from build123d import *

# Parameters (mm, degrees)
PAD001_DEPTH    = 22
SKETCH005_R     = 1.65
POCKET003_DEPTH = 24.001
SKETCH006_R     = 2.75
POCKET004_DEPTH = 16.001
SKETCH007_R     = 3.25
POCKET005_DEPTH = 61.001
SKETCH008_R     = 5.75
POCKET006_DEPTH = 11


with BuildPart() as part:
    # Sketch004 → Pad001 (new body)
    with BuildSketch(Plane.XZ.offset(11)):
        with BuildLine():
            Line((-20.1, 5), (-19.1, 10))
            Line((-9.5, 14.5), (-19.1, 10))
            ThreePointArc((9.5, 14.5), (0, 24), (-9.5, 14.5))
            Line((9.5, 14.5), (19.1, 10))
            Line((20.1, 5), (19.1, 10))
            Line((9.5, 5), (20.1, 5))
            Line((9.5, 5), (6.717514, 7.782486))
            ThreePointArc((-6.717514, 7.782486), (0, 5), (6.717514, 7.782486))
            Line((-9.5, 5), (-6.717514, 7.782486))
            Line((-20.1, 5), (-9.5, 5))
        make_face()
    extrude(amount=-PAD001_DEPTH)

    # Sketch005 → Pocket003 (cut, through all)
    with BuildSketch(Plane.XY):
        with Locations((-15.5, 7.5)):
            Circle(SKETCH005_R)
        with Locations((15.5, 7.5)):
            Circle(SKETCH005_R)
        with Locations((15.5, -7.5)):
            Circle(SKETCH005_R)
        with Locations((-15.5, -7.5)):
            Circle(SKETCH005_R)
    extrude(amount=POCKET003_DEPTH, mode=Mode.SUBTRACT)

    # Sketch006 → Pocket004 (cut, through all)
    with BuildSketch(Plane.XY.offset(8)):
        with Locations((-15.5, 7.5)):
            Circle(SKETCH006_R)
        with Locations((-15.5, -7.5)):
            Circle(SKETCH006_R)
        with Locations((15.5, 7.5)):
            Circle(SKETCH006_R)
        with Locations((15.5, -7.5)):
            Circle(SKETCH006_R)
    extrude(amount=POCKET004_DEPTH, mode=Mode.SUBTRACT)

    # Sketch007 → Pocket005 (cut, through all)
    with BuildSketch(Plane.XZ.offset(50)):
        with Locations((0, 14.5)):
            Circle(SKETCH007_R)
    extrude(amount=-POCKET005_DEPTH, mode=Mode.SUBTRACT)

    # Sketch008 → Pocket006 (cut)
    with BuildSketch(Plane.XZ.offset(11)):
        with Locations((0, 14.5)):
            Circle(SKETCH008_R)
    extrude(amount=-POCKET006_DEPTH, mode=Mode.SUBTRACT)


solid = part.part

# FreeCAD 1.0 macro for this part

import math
import FreeCAD as App
import Part
import Sketcher

V = App.Vector
Q = App.Units.Quantity

doc = App.newDocument("Part")
body = doc.addObject("PartDesign::Body", "Body")

# Sketch on XZ plane
sketch1 = body.newObject("Sketcher::SketchObject", "Sketch")
sketch1.AttachmentSupport = (doc.getObject("XZ_Plane"), [""])
sketch1.MapMode = "FlatFace"
sketch1.AttachmentOffset = App.Placement(V(0, 0, 11), App.Rotation())
sketch1.addGeometry([
    Part.LineSegment(V(-19.1, 10, 0), V(-20.1, 5, 0)),  # 0
    Part.LineSegment(V(-20.1, 5, 0), V(-9.5, 5, 0)),  # 1
    Part.LineSegment(V(-9.5, 5, 0), V(-6.7, 7.8, 0)),  # 2
    Part.ArcOfCircle(Part.Circle(V(0, 14.5, 0), V(0, 0, 1), 9.5), math.radians(-135), math.radians(-45)),  # 3
    Part.LineSegment(V(6.7, 7.8, 0), V(9.5, 5, 0)),  # 4
    Part.LineSegment(V(9.5, 5, 0), V(20.1, 5, 0)),  # 5
    Part.LineSegment(V(20.1, 5, 0), V(19.1, 10, 0)),  # 6
    Part.LineSegment(V(19.1, 10, 0), V(9.5, 14.5, 0)),  # 7
    Part.ArcOfCircle(Part.Circle(V(0, 14.5, 0), V(0, 0, 1), 9.5), math.radians(0), math.radians(180)),  # 8
    Part.LineSegment(V(-9.5, 14.5, 0), V(-19.1, 10, 0)),  # 9
], False)
sketch1.addConstraint([
    Sketcher.Constraint("Coincident", 0, 2, 1, 1),
    Sketcher.Constraint("Coincident", 1, 2, 2, 1),
    Sketcher.Constraint("Coincident", 2, 2, 3, 1),
    Sketcher.Constraint("Coincident", 3, 2, 4, 1),
    Sketcher.Constraint("Coincident", 4, 2, 5, 1),
    Sketcher.Constraint("Coincident", 5, 2, 6, 1),
    Sketcher.Constraint("Coincident", 6, 2, 7, 1),
    Sketcher.Constraint("Coincident", 7, 2, 8, 1),
    Sketcher.Constraint("Coincident", 8, 2, 9, 1),
    Sketcher.Constraint("Coincident", 9, 2, 0, 1),
    Sketcher.Constraint("Horizontal", 1),
    Sketcher.Constraint("Horizontal", 5),
    Sketcher.Constraint("Coincident", 8, 3, 3, 3),
    Sketcher.Constraint("Symmetric", 2, 2, 3, 2, -2),
    Sketcher.Constraint("Symmetric", 1, 2, 4, 2, -2),
    Sketcher.Constraint("Symmetric", 6, 2, 9, 2, -2),
    Sketcher.Constraint("Perpendicular", 2, 4),
    Sketcher.Constraint("Horizontal", 8, 3, 7, 2),
    Sketcher.Constraint("Horizontal", 7, 2, 8, 2),
    Sketcher.Constraint("Vertical", 4, 2, 7, 2),
    Sketcher.Constraint("Equal", 1, 5),
    Sketcher.Constraint("Radius", 8, Q("9.5 mm")),
    Sketcher.Constraint("DistanceX", 1, 1, 1, 2, Q("10.6 mm")),
    Sketcher.Constraint("DistanceY", -1, 1, 0, 2, Q("5 mm")),
    Sketcher.Constraint("DistanceY", -1, 1, 6, 2, Q("10 mm")),
    Sketcher.Constraint("DistanceX", 6, 2, 5, 2, Q("1 mm")),
    Sketcher.Constraint("DistanceY", -1, 1, 8, 3, Q("14.5 mm")),
    Sketcher.Constraint("Radius", 3, Q("9.499998 mm")),
])
pad1 = body.newObject("PartDesign::Pad", "Pad")
pad1.Profile = sketch1
pad1.Length = 22
pad1.Reversed = True

# Sketch on XY plane
sketch2 = body.newObject("Sketcher::SketchObject", "Sketch001")
sketch2.AttachmentSupport = (doc.getObject("XY_Plane"), [""])
sketch2.MapMode = "FlatFace"
sketch2.addGeometry([
    Part.Circle(V(-15.5, 7.5, 0), V(0, 0, 1), 1.6),
    Part.Circle(V(15.5, 7.5, 0), V(0, 0, 1), 1.6),
    Part.Circle(V(15.5, -7.5, 0), V(0, 0, 1), 1.6),
    Part.Circle(V(-15.5, -7.5, 0), V(0, 0, 1), 1.6),
], False)
sketch2.addConstraint([
    Sketcher.Constraint("Equal", 0, 1),
    Sketcher.Constraint("Equal", 1, 2),
    Sketcher.Constraint("Equal", 2, 3),
    Sketcher.Constraint("Symmetric", 0, 3, 2, 3, -1, 1),
    Sketcher.Constraint("Symmetric", 1, 3, 3, 3, -1, 1),
    Sketcher.Constraint("Symmetric", 0, 3, 1, 3, -2),
    Sketcher.Constraint("Diameter", 0, Q("3.3 mm")),
    Sketcher.Constraint("DistanceX", 0, 3, 1, 3, Q("31 mm")),
    Sketcher.Constraint("DistanceY", 2, 3, 1, 3, Q("15 mm")),
])
pocket1 = body.newObject("PartDesign::Pocket", "Pocket")
pocket1.Profile = sketch2
pocket1.Type = "ThroughAll"
pocket1.Reversed = True

# Sketch on XY plane
sketch3 = body.newObject("Sketcher::SketchObject", "Sketch002")
sketch3.AttachmentSupport = (doc.getObject("XY_Plane"), [""])
sketch3.MapMode = "FlatFace"
sketch3.AttachmentOffset = App.Placement(V(0, 0, 8), App.Rotation())
sketch3.addGeometry([
    Part.Circle(V(-15.5, 7.5, 0), V(0, 0, 1), 2.8),
    Part.Circle(V(-15.5, -7.5, 0), V(0, 0, 1), 2.8),
    Part.Circle(V(15.5, 7.5, 0), V(0, 0, 1), 2.8),
    Part.Circle(V(15.5, -7.5, 0), V(0, 0, 1), 2.8),
], False)
sketch3.addConstraint([
    Sketcher.Constraint("Equal", 0, 1),
    Sketcher.Constraint("Equal", 1, 2),
    Sketcher.Constraint("Equal", 2, 3),
    Sketcher.Constraint("Symmetric", 1, 3, 2, 3, -1, 1),
    Sketcher.Constraint("Symmetric", 0, 3, 3, 3, -1, 1),
    Sketcher.Constraint("Symmetric", 0, 3, 2, 3, -2),
    Sketcher.Constraint("Diameter", 0, Q("5.5 mm")),
    Sketcher.Constraint("DistanceY", 1, 3, 0, 3, Q("15 mm")),
    Sketcher.Constraint("DistanceX", 0, 3, 2, 3, Q("31 mm")),
])
pocket2 = body.newObject("PartDesign::Pocket", "Pocket001")
pocket2.Profile = sketch3
pocket2.Type = "ThroughAll"
pocket2.Reversed = True

# Sketch on XZ plane
sketch4 = body.newObject("Sketcher::SketchObject", "Sketch003")
sketch4.AttachmentSupport = (doc.getObject("XZ_Plane"), [""])
sketch4.MapMode = "FlatFace"
sketch4.AttachmentOffset = App.Placement(V(0, 0, 50), App.Rotation())
sketch4.addGeometry(Part.Circle(V(0, 14.5, 0), V(0, 0, 1), 3.2), False)
sketch4.addConstraint([
    Sketcher.Constraint("PointOnObject", 0, 3, -2),
    Sketcher.Constraint("Diameter", 0, Q("6.5 mm")),
    Sketcher.Constraint("DistanceY", -1, 1, 0, 3, Q("14.5 mm")),
])
pocket3 = body.newObject("PartDesign::Pocket", "Pocket002")
pocket3.Profile = sketch4
pocket3.Type = "ThroughAll"

# Sketch on XZ plane
sketch5 = body.newObject("Sketcher::SketchObject", "Sketch004")
sketch5.AttachmentSupport = (doc.getObject("XZ_Plane"), [""])
sketch5.MapMode = "FlatFace"
sketch5.AttachmentOffset = App.Placement(V(0, 0, 11), App.Rotation())
sketch5.addGeometry(Part.Circle(V(0, 14, 0), V(0, 0, 1), 6), False)
sketch5.addConstraint([
    Sketcher.Constraint("PointOnObject", 0, 3, -2),
    Sketcher.Constraint("Diameter", 0, Q("11.5 mm")),
    Sketcher.Constraint("DistanceY", -1, 1, 0, 3, Q("14.5 mm")),
])
pocket4 = body.newObject("PartDesign::Pocket", "Pocket003")
pocket4.Profile = sketch5
pocket4.Length = 11

doc.recompute()
